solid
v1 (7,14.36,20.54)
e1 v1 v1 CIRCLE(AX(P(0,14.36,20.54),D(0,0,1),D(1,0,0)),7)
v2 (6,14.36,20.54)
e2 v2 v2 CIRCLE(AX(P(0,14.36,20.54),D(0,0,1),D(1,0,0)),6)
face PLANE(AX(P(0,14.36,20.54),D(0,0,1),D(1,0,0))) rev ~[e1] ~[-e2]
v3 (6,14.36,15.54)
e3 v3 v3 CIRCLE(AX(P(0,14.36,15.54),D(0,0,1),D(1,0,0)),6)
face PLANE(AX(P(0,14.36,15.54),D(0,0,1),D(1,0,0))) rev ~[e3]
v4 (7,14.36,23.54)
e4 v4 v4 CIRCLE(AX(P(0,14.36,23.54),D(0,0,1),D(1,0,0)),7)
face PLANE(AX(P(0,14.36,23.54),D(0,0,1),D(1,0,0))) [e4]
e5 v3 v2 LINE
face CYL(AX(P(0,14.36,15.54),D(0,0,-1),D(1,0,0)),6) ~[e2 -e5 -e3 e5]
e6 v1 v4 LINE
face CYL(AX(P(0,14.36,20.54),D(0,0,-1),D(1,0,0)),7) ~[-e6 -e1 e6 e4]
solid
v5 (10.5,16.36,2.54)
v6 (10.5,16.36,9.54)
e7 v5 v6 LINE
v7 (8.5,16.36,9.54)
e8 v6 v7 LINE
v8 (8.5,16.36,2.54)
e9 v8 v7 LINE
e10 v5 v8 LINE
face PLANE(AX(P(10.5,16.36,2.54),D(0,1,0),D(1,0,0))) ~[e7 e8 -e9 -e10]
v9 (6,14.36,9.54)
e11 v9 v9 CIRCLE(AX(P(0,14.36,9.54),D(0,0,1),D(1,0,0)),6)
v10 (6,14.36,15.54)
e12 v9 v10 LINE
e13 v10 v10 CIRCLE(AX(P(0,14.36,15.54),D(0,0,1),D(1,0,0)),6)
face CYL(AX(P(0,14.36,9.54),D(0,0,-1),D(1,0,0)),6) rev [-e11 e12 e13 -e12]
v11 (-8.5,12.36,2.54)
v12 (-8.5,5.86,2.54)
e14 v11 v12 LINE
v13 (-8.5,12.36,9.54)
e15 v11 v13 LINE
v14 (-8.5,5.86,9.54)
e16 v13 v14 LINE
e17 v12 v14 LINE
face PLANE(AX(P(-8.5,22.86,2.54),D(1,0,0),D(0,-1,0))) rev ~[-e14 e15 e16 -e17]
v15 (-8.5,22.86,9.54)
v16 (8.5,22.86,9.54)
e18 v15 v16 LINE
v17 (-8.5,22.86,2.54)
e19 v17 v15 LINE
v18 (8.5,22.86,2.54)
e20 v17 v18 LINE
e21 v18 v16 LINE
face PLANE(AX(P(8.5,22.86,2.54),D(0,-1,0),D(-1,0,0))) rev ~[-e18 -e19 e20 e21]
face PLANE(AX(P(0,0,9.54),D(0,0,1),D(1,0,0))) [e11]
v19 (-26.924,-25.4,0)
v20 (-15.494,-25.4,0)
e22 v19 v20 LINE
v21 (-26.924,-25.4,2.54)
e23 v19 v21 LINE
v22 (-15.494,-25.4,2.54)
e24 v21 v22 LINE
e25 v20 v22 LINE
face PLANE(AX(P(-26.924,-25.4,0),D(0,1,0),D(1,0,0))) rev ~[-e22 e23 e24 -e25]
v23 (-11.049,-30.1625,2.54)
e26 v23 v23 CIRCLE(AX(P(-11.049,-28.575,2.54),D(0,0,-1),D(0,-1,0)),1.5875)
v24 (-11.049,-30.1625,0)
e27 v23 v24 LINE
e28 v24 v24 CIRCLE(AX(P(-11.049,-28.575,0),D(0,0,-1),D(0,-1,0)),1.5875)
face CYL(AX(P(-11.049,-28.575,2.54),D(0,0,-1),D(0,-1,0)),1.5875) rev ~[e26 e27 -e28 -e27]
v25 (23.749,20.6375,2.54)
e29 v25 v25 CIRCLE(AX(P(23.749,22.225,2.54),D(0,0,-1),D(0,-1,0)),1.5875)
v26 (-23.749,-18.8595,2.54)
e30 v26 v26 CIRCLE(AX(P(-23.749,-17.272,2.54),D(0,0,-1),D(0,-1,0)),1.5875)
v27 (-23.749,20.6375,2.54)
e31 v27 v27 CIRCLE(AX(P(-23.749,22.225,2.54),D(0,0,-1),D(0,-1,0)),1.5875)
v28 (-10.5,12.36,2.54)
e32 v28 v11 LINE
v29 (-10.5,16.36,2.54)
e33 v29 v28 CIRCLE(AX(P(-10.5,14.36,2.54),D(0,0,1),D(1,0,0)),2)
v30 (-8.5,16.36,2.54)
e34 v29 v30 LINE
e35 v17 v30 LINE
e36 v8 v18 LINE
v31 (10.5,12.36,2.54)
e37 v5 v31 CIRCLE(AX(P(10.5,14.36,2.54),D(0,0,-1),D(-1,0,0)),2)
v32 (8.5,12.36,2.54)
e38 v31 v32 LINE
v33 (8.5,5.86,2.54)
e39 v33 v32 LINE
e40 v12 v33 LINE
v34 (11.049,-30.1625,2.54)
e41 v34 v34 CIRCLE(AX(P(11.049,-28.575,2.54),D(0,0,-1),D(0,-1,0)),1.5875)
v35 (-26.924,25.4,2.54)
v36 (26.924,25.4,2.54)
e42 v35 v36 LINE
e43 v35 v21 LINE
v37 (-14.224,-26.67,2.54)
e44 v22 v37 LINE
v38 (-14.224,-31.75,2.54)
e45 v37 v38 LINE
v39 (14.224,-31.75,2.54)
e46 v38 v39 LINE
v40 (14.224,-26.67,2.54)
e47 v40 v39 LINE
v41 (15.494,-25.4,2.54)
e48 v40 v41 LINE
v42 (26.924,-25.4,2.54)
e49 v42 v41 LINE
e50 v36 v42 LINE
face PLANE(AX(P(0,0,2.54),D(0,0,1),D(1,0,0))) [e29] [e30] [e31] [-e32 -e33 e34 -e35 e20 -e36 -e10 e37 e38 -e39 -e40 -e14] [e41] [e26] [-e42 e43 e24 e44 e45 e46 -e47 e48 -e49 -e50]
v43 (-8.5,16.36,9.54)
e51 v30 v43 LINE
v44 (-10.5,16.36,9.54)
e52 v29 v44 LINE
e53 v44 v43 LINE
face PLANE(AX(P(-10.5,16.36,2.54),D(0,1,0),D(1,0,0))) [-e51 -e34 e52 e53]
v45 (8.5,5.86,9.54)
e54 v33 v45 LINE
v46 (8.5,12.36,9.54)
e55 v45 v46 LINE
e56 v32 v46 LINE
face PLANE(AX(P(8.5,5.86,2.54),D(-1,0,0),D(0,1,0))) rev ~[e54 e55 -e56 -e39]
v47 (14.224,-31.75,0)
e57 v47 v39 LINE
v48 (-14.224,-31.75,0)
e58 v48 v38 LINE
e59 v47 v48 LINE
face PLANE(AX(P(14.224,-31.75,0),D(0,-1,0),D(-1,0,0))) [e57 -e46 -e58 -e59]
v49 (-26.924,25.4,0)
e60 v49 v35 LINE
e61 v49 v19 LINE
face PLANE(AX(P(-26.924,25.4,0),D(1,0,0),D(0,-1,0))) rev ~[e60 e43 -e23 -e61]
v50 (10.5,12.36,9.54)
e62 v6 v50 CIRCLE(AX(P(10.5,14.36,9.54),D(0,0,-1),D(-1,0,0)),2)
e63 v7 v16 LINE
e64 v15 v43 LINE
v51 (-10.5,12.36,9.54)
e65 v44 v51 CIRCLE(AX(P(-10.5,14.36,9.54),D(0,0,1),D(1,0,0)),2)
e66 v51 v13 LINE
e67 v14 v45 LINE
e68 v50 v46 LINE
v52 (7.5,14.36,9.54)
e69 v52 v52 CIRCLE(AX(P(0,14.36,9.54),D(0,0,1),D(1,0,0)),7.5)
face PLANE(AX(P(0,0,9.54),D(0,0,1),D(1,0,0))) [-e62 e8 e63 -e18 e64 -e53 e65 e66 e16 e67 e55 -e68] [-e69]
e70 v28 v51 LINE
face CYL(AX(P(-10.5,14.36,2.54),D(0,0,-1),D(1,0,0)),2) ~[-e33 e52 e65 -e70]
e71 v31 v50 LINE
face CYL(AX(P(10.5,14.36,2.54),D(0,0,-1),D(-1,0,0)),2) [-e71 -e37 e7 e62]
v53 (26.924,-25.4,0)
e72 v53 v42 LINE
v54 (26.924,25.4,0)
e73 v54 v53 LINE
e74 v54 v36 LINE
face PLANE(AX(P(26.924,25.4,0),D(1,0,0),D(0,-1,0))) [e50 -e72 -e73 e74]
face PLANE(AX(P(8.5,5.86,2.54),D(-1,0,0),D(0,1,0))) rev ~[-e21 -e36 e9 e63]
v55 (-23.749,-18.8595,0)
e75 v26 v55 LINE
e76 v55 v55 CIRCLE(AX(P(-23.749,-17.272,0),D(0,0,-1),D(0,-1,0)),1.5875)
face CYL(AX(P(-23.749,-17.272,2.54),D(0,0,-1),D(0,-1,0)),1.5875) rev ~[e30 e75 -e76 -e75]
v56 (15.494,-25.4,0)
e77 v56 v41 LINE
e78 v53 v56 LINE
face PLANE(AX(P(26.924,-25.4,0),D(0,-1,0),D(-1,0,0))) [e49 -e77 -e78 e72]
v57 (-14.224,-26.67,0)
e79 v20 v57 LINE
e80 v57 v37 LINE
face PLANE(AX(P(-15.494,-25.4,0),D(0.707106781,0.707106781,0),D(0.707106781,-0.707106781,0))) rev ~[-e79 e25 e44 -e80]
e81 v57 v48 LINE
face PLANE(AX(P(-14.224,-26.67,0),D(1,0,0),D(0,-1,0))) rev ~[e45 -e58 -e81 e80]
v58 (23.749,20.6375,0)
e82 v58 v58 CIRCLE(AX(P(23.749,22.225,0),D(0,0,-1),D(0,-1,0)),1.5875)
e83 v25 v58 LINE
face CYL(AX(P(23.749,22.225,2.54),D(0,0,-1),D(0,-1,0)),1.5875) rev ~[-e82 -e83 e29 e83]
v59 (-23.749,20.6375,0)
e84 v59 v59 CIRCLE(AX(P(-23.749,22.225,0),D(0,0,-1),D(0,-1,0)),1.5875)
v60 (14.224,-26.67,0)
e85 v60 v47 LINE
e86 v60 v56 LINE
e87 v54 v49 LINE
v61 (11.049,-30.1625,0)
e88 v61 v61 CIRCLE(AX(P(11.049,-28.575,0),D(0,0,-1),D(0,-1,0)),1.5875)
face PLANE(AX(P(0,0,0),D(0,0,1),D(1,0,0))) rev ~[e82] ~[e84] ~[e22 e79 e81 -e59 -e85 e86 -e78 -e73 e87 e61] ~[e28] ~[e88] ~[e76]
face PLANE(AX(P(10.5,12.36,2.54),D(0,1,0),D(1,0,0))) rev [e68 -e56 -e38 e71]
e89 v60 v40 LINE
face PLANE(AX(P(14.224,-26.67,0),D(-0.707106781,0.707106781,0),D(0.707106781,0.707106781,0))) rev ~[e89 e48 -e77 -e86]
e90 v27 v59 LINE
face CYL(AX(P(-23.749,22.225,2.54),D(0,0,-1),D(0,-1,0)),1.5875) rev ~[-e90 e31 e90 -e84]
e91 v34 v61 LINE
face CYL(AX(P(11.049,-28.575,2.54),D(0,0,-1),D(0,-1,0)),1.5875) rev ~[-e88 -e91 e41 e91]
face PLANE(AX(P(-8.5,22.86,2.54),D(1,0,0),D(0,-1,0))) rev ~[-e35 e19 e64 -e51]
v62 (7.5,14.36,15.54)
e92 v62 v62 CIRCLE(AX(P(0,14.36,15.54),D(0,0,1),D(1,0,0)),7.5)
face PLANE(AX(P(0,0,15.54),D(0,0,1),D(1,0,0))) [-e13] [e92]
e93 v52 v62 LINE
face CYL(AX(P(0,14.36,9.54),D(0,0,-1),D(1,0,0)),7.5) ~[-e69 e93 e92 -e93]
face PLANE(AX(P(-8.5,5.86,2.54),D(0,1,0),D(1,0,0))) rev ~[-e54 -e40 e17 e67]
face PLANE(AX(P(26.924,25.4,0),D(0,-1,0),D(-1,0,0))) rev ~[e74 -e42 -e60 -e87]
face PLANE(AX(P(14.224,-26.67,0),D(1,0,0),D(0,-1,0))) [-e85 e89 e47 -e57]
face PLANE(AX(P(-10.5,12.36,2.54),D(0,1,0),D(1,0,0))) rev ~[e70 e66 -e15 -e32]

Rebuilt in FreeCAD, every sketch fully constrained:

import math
import FreeCAD as App
import Part
import Sketcher

V = App.Vector

doc = App.newDocument("Part")
params = doc.addObject("Spreadsheet::Sheet", "Params")
for row, (alias, value) in enumerate([
    ("sketch1_height", "50.8 mm"),
    ("sketch1_width", "11.43 mm"),
    ("sketch1_height2", "5.08 mm"),
    ("pad1_length", "2.54 mm"),
    ("hole_diameter", "3.175 mm"),
    ("sketch3_width", "17 mm"),
    ("pad2_length", "7 mm"),
    ("sketch4_diameter", "15 mm"),
    ("sketch4_diameter2", "12 mm"),
    ("pad3_length", "6 mm"),
    ("sketch5_diameter", "12 mm"),
    ("pad4_length", "5 mm"),
    ("sketch6_diameter", "14 mm"),
    ("pad5_length", "3 mm"),
    ("sketch7_radius", "2 mm"),
    ("sketch7_width", "2 mm"),
    ("pad6_length", "7 mm"),
], start=1):
    params.set(f"A{row}", alias)
    params.set(f"B{row}", "=" + value)
    params.setAlias(f"B{row}", alias)

body = doc.addObject("PartDesign::Body", "Body")
body.AllowCompound = True

# Sketch on XY plane
sketch1 = body.newObject("Sketcher::SketchObject", "Sketch")
sketch1.AttachmentSupport = (doc.getObject("XY_Plane"), [""])
sketch1.MapMode = "FlatFace"
sketch1.addGeometry(Part.LineSegment(V(26.9, -25.4, 0), V(26.9, 25.4, 0)), False)
sketch1.addGeometry(Part.LineSegment(V(26.9, 25.4, 0), V(-26.9, 25.4, 0)), False)
sketch1.addGeometry(Part.LineSegment(V(-26.9, 25.4, 0), V(-26.9, -25.4, 0)), False)
sketch1.addGeometry(Part.LineSegment(V(-26.9, -25.4, 0), V(-15.5, -25.4, 0)), False)
sketch1.addGeometry(Part.LineSegment(V(-15.5, -25.4, 0), V(-14.2, -26.7, 0)), False)
sketch1.addGeometry(Part.LineSegment(V(-14.2, -26.7, 0), V(-14.2, -31.8, 0)), False)
sketch1.addGeometry(Part.LineSegment(V(-14.2, -31.8, 0), V(14.2, -31.8, 0)), False)
sketch1.addGeometry(Part.LineSegment(V(14.2, -31.8, 0), V(14.2, -26.7, 0)), False)
sketch1.addGeometry(Part.LineSegment(V(14.2, -26.7, 0), V(15.5, -25.4, 0)), False)
sketch1.addGeometry(Part.LineSegment(V(15.5, -25.4, 0), V(26.9, -25.4, 0)), False)
sketch1.addConstraint(Sketcher.Constraint("Coincident", 0, 2, 1, 1))
sketch1.addConstraint(Sketcher.Constraint("Coincident", 1, 2, 2, 1))
sketch1.addConstraint(Sketcher.Constraint("Coincident", 2, 2, 3, 1))
sketch1.addConstraint(Sketcher.Constraint("Coincident", 3, 2, 4, 1))
sketch1.addConstraint(Sketcher.Constraint("Coincident", 4, 2, 5, 1))
sketch1.addConstraint(Sketcher.Constraint("Coincident", 5, 2, 6, 1))
sketch1.addConstraint(Sketcher.Constraint("Coincident", 6, 2, 7, 1))
sketch1.addConstraint(Sketcher.Constraint("Coincident", 7, 2, 8, 1))
sketch1.addConstraint(Sketcher.Constraint("Coincident", 8, 2, 9, 1))
sketch1.addConstraint(Sketcher.Constraint("Coincident", 9, 2, 0, 1))
sketch1.addConstraint(Sketcher.Constraint("Vertical", 0))
sketch1.addConstraint(Sketcher.Constraint("Horizontal", 1))
sketch1.addConstraint(Sketcher.Constraint("Vertical", 2))
sketch1.addConstraint(Sketcher.Constraint("Horizontal", 3))
sketch1.addConstraint(Sketcher.Constraint("Vertical", 5))
sketch1.addConstraint(Sketcher.Constraint("Horizontal", 6))
sketch1.addConstraint(Sketcher.Constraint("Vertical", 7))
sketch1.addConstraint(Sketcher.Constraint("Horizontal", 9))
sketch1.addConstraint(Sketcher.Constraint("Symmetric", 0, 2, 2, 2, -1, 1))
sketch1.addConstraint(Sketcher.Constraint("Symmetric", 4, 2, 7, 2, -2))
sketch1.addConstraint(Sketcher.Constraint("Symmetric", 3, 2, 8, 2, -2))
sketch1.addConstraint(Sketcher.Constraint("Perpendicular", 4, 8))
sketch1.addConstraint(Sketcher.Constraint("DistanceY", 0, 1, 0, 2, 50.8))
sketch1.addConstraint(Sketcher.Constraint("DistanceX", 3, 1, 3, 2, 11.43))
sketch1.addConstraint(Sketcher.Constraint("DistanceY", 5, 2, 5, 1, 5.08))
sketch1.addConstraint(Sketcher.Constraint("DistanceX", 2, 2, 4, 2, 12.7))
sketch1.addConstraint(Sketcher.Constraint("DistanceX", 1, 2, 1, 1, 53.848))
sketch1.setExpression("Constraints[22]", "Params.sketch1_height")
sketch1.setExpression("Constraints[23]", "Params.sketch1_width")
sketch1.setExpression("Constraints[24]", "Params.sketch1_height2")
pad1 = body.newObject("PartDesign::Pad", "Pad")
pad1.Profile = sketch1
pad1.setExpression("Length", "Params.pad1_length")

# Sketch on XY plane
sketch2 = body.newObject("Sketcher::SketchObject", "Sketch001")
sketch2.AttachmentSupport = (doc.getObject("XY_Plane"), [""])
sketch2.MapMode = "FlatFace"
sketch2.AttachmentOffset = App.Placement(V(0, 0, 2.54), App.Rotation())
sketch2.addGeometry(Part.Circle(V(-23.7, 22.2, 0), V(0, 0, 1), 1.6), False)
sketch2.addGeometry(Part.Circle(V(23.7, 22.2, 0), V(0, 0, 1), 1.6), False)
sketch2.addGeometry(Part.Circle(V(-23.7, -17.3, 0), V(0, 0, 1), 1.6), False)
sketch2.addGeometry(Part.Circle(V(-11, -28.6, 0), V(0, 0, 1), 1.6), False)
sketch2.addGeometry(Part.Circle(V(11, -28.6, 0), V(0, 0, 1), 1.6), False)
sketch2.addConstraint(Sketcher.Constraint("Equal", 0, 1))
sketch2.addConstraint(Sketcher.Constraint("Equal", 1, 2))
sketch2.addConstraint(Sketcher.Constraint("Equal", 2, 3))
sketch2.addConstraint(Sketcher.Constraint("Equal", 3, 4))
sketch2.addConstraint(Sketcher.Constraint("Symmetric", 0, 3, 1, 3, -2))
sketch2.addConstraint(Sketcher.Constraint("Symmetric", 3, 3, 4, 3, -2))
sketch2.addConstraint(Sketcher.Constraint("Vertical", 0, 3, 2, 3))
sketch2.addConstraint(Sketcher.Constraint("Diameter", 0, 3.175))
sketch2.addConstraint(Sketcher.Constraint("DistanceX", 2, 3, 3, 3, 12.7))
sketch2.addConstraint(Sketcher.Constraint("DistanceY", 3, 3, 0, 3, 50.8))
sketch2.addConstraint(Sketcher.Constraint("DistanceX", 0, 3, -1, 1, 23.749))
sketch2.addConstraint(Sketcher.Constraint("DistanceY", -1, 1, 0, 3, 22.225))
sketch2.addConstraint(Sketcher.Constraint("DistanceY", 2, 3, -1, 1, 17.272))
doc.recompute()
hole = body.newObject("PartDesign::Hole", "Hole")
hole.Profile = sketch2
hole.ThreadType = "None"
hole.setExpression("Diameter", "Params.hole_diameter")
hole.DepthType = "ThroughAll"

# Sketch on XY plane
sketch3 = body.newObject("Sketcher::SketchObject", "Sketch002")
sketch3.AttachmentSupport = (doc.getObject("XY_Plane"), [""])
sketch3.MapMode = "FlatFace"
sketch3.AttachmentOffset = App.Placement(V(0, 0, 2.54), App.Rotation())
sketch3.addGeometry(Part.LineSegment(V(-8, 23, 0), V(-8, 6, 0)), False)
sketch3.addGeometry(Part.LineSegment(V(-8, 6, 0), V(8, 6, 0)), False)
sketch3.addGeometry(Part.LineSegment(V(8, 6, 0), V(8, 23, 0)), False)
sketch3.addGeometry(Part.LineSegment(V(8, 23, 0), V(-8, 23, 0)), False)
sketch3.addConstraint(Sketcher.Constraint("Coincident", 0, 2, 1, 1))
sketch3.addConstraint(Sketcher.Constraint("Coincident", 1, 2, 2, 1))
sketch3.addConstraint(Sketcher.Constraint("Coincident", 2, 2, 3, 1))
sketch3.addConstraint(Sketcher.Constraint("Coincident", 3, 2, 0, 1))
sketch3.addConstraint(Sketcher.Constraint("Vertical", 0))
sketch3.addConstraint(Sketcher.Constraint("Horizontal", 1))
sketch3.addConstraint(Sketcher.Constraint("Vertical", 2))
sketch3.addConstraint(Sketcher.Constraint("Horizontal", 3))
sketch3.addConstraint(Sketcher.Constraint("Equal", 3, 0))
sketch3.addConstraint(Sketcher.Constraint("DistanceX", 1, 1, 1, 2, 17.0))
sketch3.addConstraint(Sketcher.Constraint("DistanceX", 0, 2, -1, 1, 8.5))
sketch3.addConstraint(Sketcher.Constraint("DistanceY", -1, 1, 0, 2, 5.86))
sketch3.setExpression("Constraints[9]", "Params.sketch3_width")
pad2 = body.newObject("PartDesign::Pad", "Pad001")
pad2.Profile = sketch3
pad2.setExpression("Length", "Params.pad2_length")

# Sketch on XY plane
sketch4 = body.newObject("Sketcher::SketchObject", "Sketch003")
sketch4.AttachmentSupport = (doc.getObject("XY_Plane"), [""])
sketch4.MapMode = "FlatFace"
sketch4.AttachmentOffset = App.Placement(V(0, 0, 9.54), App.Rotation())
sketch4.addGeometry(Part.Circle(V(0, 14, 0), V(0, 0, 1), 8), False)
sketch4.addGeometry(Part.Circle(V(0, 14, 0), V(0, 0, 1), 6), False)
sketch4.addConstraint(Sketcher.Constraint("Coincident", 1, 3, 0, 3))
sketch4.addConstraint(Sketcher.Constraint("PointOnObject", 0, 3, -2))
sketch4.addConstraint(Sketcher.Constraint("Diameter", 0, 15.0))
sketch4.addConstraint(Sketcher.Constraint("Diameter", 1, 12.0))
sketch4.addConstraint(Sketcher.Constraint("DistanceY", -1, 1, 0, 3, 14.36))
sketch4.setExpression("Constraints[2]", "Params.sketch4_diameter")
sketch4.setExpression("Constraints[3]", "Params.sketch4_diameter2")
pad3 = body.newObject("PartDesign::Pad", "Pad002")
pad3.Profile = sketch4
pad3.setExpression("Length", "Params.pad3_length")

# Sketch on XY plane
sketch5 = body.newObject("Sketcher::SketchObject", "Sketch004")
sketch5.AttachmentSupport = (doc.getObject("XY_Plane"), [""])
sketch5.MapMode = "FlatFace"
sketch5.AttachmentOffset = App.Placement(V(0, 0, 15.54), App.Rotation())
sketch5.addGeometry(Part.Circle(V(0, 14, 0), V(0, 0, 1), 6), False)
sketch5.addConstraint(Sketcher.Constraint("PointOnObject", 0, 3, -2))
sketch5.addConstraint(Sketcher.Constraint("Diameter", 0, 12.0))
sketch5.addConstraint(Sketcher.Constraint("DistanceY", -1, 1, 0, 3, 14.36))
sketch5.setExpression("Constraints[1]", "Params.sketch5_diameter")
pad4 = body.newObject("PartDesign::Pad", "Pad003")
pad4.Profile = sketch5
pad4.setExpression("Length", "Params.pad4_length")

# Sketch on XY plane
sketch6 = body.newObject("Sketcher::SketchObject", "Sketch005")
sketch6.AttachmentSupport = (doc.getObject("XY_Plane"), [""])
sketch6.MapMode = "FlatFace"
sketch6.AttachmentOffset = App.Placement(V(0, 0, 20.54), App.Rotation())
sketch6.addGeometry(Part.Circle(V(0, 14, 0), V(0, 0, 1), 7), False)
sketch6.addConstraint(Sketcher.Constraint("PointOnObject", 0, 3, -2))
sketch6.addConstraint(Sketcher.Constraint("Diameter", 0, 14.0))
sketch6.addConstraint(Sketcher.Constraint("DistanceY", -1, 1, 0, 3, 14.36))
sketch6.setExpression("Constraints[1]", "Params.sketch6_diameter")
pad5 = body.newObject("PartDesign::Pad", "Pad004")
pad5.Profile = sketch6
pad5.setExpression("Length", "Params.pad5_length")

# Sketch on XY plane
sketch7 = body.newObject("Sketcher::SketchObject", "Sketch006")
sketch7.AttachmentSupport = (doc.getObject("XY_Plane"), [""])
sketch7.MapMode = "FlatFace"
sketch7.AttachmentOffset = App.Placement(V(0, 0, 2.54), App.Rotation())
sketch7.addGeometry(Part.LineSegment(V(-8.5, 16.4, 0), V(-10.5, 16.4, 0)), False)
sketch7.addGeometry(Part.ArcOfCircle(Part.Circle(V(-10.5, 14.4, 0), V(0, 0, 1), 2), math.radians(90), math.radians(270)), False)
sketch7.addGeometry(Part.LineSegment(V(-10.5, 12.4, 0), V(-8.5, 12.4, 0)), False)
sketch7.addGeometry(Part.LineSegment(V(-8.5, 12.4, 0), V(-8.5, 16.4, 0)), False)
sketch7.addConstraint(Sketcher.Constraint("Tangent", 0, 2, 1, 1))
sketch7.addConstraint(Sketcher.Constraint("Tangent", 1, 2, 2, 1))
sketch7.addConstraint(Sketcher.Constraint("Coincident", 2, 2, 3, 1))
sketch7.addConstraint(Sketcher.Constraint("Coincident", 3, 2, 0, 1))
sketch7.addConstraint(Sketcher.Constraint("Horizontal", 0))
sketch7.addConstraint(Sketcher.Constraint("Horizontal", 2))
sketch7.addConstraint(Sketcher.Constraint("Vertical", 3))
sketch7.addConstraint(Sketcher.Constraint("Radius", 1, 2.0))
sketch7.addConstraint(Sketcher.Constraint("DistanceX", 0, 2, 0, 1, 2.0))
sketch7.addConstraint(Sketcher.Constraint("DistanceX", 1, 3, -1, 1, 10.5))
sketch7.addConstraint(Sketcher.Constraint("DistanceY", -1, 1, 1, 3, 14.36))
sketch7.setExpression("Constraints[7]", "Params.sketch7_radius")
sketch7.setExpression("Constraints[8]", "Params.sketch7_width")
pad6 = body.newObject("PartDesign::Pad", "Pad005")
pad6.Profile = sketch7
pad6.setExpression("Length", "Params.pad6_length")
doc.recompute()

mirrored = body.newObject("PartDesign::Mirrored", "Mirrored")
mirrored.Originals = [pad6]
mirrored.MirrorPlane = (doc.getObject("YZ_Plane"), [""])
body.Tip = mirrored

doc.recompute()
